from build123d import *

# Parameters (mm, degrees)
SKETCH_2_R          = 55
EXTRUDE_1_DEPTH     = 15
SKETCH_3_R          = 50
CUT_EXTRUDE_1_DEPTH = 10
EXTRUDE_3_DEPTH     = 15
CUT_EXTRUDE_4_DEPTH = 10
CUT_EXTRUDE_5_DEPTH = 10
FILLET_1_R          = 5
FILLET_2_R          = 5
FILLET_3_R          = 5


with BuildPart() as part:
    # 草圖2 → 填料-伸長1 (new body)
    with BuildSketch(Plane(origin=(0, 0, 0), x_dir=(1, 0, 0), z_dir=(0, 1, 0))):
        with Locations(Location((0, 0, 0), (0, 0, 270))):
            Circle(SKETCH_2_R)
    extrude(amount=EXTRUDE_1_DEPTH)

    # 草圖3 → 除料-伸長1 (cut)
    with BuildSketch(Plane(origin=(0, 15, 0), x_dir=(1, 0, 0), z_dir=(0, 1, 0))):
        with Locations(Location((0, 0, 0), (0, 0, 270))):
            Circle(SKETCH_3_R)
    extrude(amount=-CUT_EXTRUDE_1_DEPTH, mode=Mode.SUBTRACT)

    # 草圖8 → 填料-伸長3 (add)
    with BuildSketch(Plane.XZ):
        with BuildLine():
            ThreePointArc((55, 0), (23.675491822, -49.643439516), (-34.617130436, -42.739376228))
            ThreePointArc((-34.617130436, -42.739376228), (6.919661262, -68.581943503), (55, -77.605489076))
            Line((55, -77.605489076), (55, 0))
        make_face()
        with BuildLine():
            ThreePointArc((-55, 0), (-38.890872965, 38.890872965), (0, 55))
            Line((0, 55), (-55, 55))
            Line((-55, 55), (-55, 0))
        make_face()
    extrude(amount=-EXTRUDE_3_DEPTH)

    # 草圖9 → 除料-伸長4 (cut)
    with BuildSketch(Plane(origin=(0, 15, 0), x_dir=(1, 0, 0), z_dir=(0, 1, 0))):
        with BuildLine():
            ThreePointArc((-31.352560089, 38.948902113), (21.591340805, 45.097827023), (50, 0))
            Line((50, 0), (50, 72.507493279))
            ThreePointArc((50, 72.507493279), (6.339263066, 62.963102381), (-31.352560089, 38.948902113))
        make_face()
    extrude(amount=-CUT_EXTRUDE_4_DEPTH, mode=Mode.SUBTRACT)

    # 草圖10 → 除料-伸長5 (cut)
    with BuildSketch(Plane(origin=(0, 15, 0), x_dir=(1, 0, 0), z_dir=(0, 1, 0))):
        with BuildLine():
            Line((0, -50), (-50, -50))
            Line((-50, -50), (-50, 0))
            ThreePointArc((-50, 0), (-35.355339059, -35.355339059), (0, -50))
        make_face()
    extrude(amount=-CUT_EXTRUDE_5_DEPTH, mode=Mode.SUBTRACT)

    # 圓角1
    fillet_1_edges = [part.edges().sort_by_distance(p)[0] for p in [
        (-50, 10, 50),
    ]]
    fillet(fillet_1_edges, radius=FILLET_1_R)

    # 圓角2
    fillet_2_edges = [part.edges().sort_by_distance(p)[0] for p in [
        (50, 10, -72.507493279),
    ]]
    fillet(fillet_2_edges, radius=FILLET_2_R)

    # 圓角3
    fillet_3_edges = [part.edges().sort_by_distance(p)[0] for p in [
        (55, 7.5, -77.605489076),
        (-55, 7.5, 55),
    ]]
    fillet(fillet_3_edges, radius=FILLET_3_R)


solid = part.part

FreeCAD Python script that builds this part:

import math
import FreeCAD as App
import Part
import Sketcher
from FreeCAD import Vector
Q = App.Units.Quantity


def edges_at(feature, points):
    """Names of the edges that pass closest to the given points."""
    edges = feature.Shape.Edges
    near = lambda p: min(range(len(edges)), key=lambda i: edges[i].distToShape(Part.Vertex(*p))[0])
    return sorted({f"Edge{near(p) + 1}" for p in points})

doc = App.newDocument("Part")
body = doc.addObject("PartDesign::Body", "Body")

# Sketch on XZ plane
sketch1 = doc.addObject("Sketcher::SketchObject", "Sketch")
body.addObject(sketch1)
sketch1.AttachmentSupport = (doc.XZ_Plane, [""])
sketch1.MapMode = "FlatFace"
sketch1.addGeometry(Part.Circle(Vector(0, 0, 0), Vector(0, 0, 1), 55), False)
sketch1.addConstraint(Sketcher.Constraint("Coincident", 0, 3, -1, 1))
sketch1.addConstraint(Sketcher.Constraint("Diameter", 0, Q("110 mm")))
pad1 = doc.addObject("PartDesign::Pad", "Pad")
body.addObject(pad1)
pad1.Profile = sketch1
pad1.Length = 15
pad1.Reversed = True

# Sketch on XZ plane
sketch2 = doc.addObject("Sketcher::SketchObject", "Sketch001")
body.addObject(sketch2)
sketch2.AttachmentSupport = (doc.XZ_Plane, [""])
sketch2.MapMode = "FlatFace"
sketch2.AttachmentOffset = App.Placement(Vector(0, 0, -15), App.Rotation())
sketch2.addGeometry(Part.Circle(Vector(0, 0, 0), Vector(0, 0, 1), 50), False)
sketch2.addConstraint(Sketcher.Constraint("Coincident", 0, 3, -1, 1))
sketch2.addConstraint(Sketcher.Constraint("Diameter", 0, Q("100 mm")))
pocket1 = doc.addObject("PartDesign::Pocket", "Pocket")
body.addObject(pocket1)
pocket1.Profile = sketch2
pocket1.Length = 10
pocket1.Reversed = True

# Sketch on XZ plane
sketch3 = doc.addObject("Sketcher::SketchObject", "Sketch002")
body.addObject(sketch3)
sketch3.AttachmentSupport = (doc.XZ_Plane, [""])
sketch3.MapMode = "FlatFace"
sketch3.addGeometry(Part.ArcOfCircle(Part.Circle(Vector(0, 0, 0), Vector(0, 0, 1), 55), math.radians(-129.006044), math.radians(0)), False)
sketch3.addGeometry(Part.ArcOfCircle(Part.Circle(Vector(55, 55, 0), Vector(0, 0, 1), 132.605489), math.radians(-132.517678), math.radians(-90)), False)
sketch3.addGeometry(Part.LineSegment(Vector(55, -77.605489, 0), Vector(55, 0, 0)), False)
sketch3.addGeometry(Part.ArcOfCircle(Part.Circle(Vector(0, 0, 0), Vector(0, 0, 1), 55), math.radians(90), math.radians(180)), False)
sketch3.addGeometry(Part.LineSegment(Vector(0, 55, 0), Vector(-55, 55, 0)), False)
sketch3.addGeometry(Part.LineSegment(Vector(-55, 55, 0), Vector(-55, 0, 0)), False)
sketch3.addConstraint(Sketcher.Constraint("Coincident", 0, 1, 1, 1))
sketch3.addConstraint(Sketcher.Constraint("Coincident", 1, 2, 2, 1))
sketch3.addConstraint(Sketcher.Constraint("Tangent", 2, 2, 0, 2))
sketch3.addConstraint(Sketcher.Constraint("Tangent", 3, 1, 4, 1))
sketch3.addConstraint(Sketcher.Constraint("Coincident", 4, 2, 5, 1))
sketch3.addConstraint(Sketcher.Constraint("Tangent", 5, 2, 3, 2))
sketch3.addConstraint(Sketcher.Constraint("Vertical", 2))
sketch3.addConstraint(Sketcher.Constraint("Horizontal", 4))
sketch3.addConstraint(Sketcher.Constraint("Vertical", 5))
sketch3.addConstraint(Sketcher.Constraint("Coincident", 0, 3, -1, 1))
sketch3.addConstraint(Sketcher.Constraint("Coincident", 3, 3, -1, 1))
sketch3.addConstraint(Sketcher.Constraint("Equal", 0, 3))
sketch3.addConstraint(Sketcher.Constraint("Horizontal", 1, 3, 3, 1))
sketch3.addConstraint(Sketcher.Constraint("Radius", 0, Q("55 mm")))
sketch3.addConstraint(Sketcher.Constraint("DistanceX", -1, 1, 1, 3, Q("55 mm")))
sketch3.addConstraint(Sketcher.Constraint("Radius", 1, Q("132.605489 mm")))
pad2 = doc.addObject("PartDesign::Pad", "Pad001")
body.addObject(pad2)
pad2.Profile = sketch3
pad2.Length = 15
pad2.Reversed = True

# Sketch on XZ plane
sketch4 = doc.addObject("Sketcher::SketchObject", "Sketch003")
body.addObject(sketch4)
sketch4.AttachmentSupport = (doc.XZ_Plane, [""])
sketch4.MapMode = "FlatFace"
sketch4.AttachmentOffset = App.Placement(Vector(0, 0, -15), App.Rotation())
sketch4.addGeometry(Part.ArcOfCircle(Part.Circle(Vector(0, 0, 0), Vector(0, 0, 1), 50), math.radians(-128.832899), math.radians(0)), False)
sketch4.addGeometry(Part.LineSegment(Vector(50, 0, 0), Vector(50, -72.507493, 0)), False)
sketch4.addGeometry(Part.ArcOfCircle(Part.Circle(Vector(55, 55, 0), Vector(0, 0, 1), 127.605489), math.radians(-132.587479), math.radians(-92.245611)), False)
sketch4.addConstraint(Sketcher.Constraint("Tangent", 0, 2, 1, 1))
sketch4.addConstraint(Sketcher.Constraint("Coincident", 1, 2, 2, 2))
sketch4.addConstraint(Sketcher.Constraint("Coincident", 2, 1, 0, 1))
sketch4.addConstraint(Sketcher.Constraint("Vertical", 1))
sketch4.addConstraint(Sketcher.Constraint("Coincident", 0, 3, -1, 1))
sketch4.addConstraint(Sketcher.Constraint("Radius", 0, Q("50 mm")))
sketch4.addConstraint(Sketcher.Constraint("DistanceX", -1, 1, 2, 3, Q("55 mm")))
sketch4.addConstraint(Sketcher.Constraint("DistanceY", -1, 1, 2, 3, Q("55 mm")))
sketch4.addConstraint(Sketcher.Constraint("Radius", 2, Q("127.605489 mm")))
pocket2 = doc.addObject("PartDesign::Pocket", "Pocket001")
body.addObject(pocket2)
pocket2.Profile = sketch4
pocket2.Length = 10
pocket2.Reversed = True

# Sketch on XZ plane
sketch5 = doc.addObject("Sketcher::SketchObject", "Sketch004")
body.addObject(sketch5)
sketch5.AttachmentSupport = (doc.XZ_Plane, [""])
sketch5.MapMode = "FlatFace"
sketch5.AttachmentOffset = App.Placement(Vector(0, 0, -15), App.Rotation())
sketch5.addGeometry(Part.LineSegment(Vector(-50, 50, 0), Vector(0, 50, 0)), False)
sketch5.addGeometry(Part.ArcOfCircle(Part.Circle(Vector(0, 0, 0), Vector(0, 0, 1), 50), math.radians(90), math.radians(180)), False)
sketch5.addGeometry(Part.LineSegment(Vector(-50, 0, 0), Vector(-50, 50, 0)), False)
sketch5.addConstraint(Sketcher.Constraint("Tangent", 0, 2, 1, 1))
sketch5.addConstraint(Sketcher.Constraint("Tangent", 1, 2, 2, 1))
sketch5.addConstraint(Sketcher.Constraint("Coincident", 2, 2, 0, 1))
sketch5.addConstraint(Sketcher.Constraint("Horizontal", 0))
sketch5.addConstraint(Sketcher.Constraint("Vertical", 2))
sketch5.addConstraint(Sketcher.Constraint("Coincident", 1, 3, -1, 1))
sketch5.addConstraint(Sketcher.Constraint("Radius", 1, Q("50 mm")))
pocket3 = doc.addObject("PartDesign::Pocket", "Pocket002")
body.addObject(pocket3)
pocket3.Profile = sketch5
pocket3.Length = 10
pocket3.Reversed = True
doc.recompute()

fillet = doc.addObject("PartDesign::Fillet", "Fillet")
body.addObject(fillet)
fillet.Base = (pocket3, edges_at(pocket3, [(-50, 10, 50)]))
fillet.Radius = 5
doc.recompute()

fillet2 = doc.addObject("PartDesign::Fillet", "Fillet001")
body.addObject(fillet2)
fillet2.Base = (fillet, edges_at(fillet, [(50, 10, -72.507)]))
fillet2.Radius = 5
doc.recompute()

fillet3 = doc.addObject("PartDesign::Fillet", "Fillet002")
body.addObject(fillet3)
fillet3.Base = (fillet2, edges_at(fillet2, [(55, 7.5, -77.605), (-55, 7.5, 55)]))
fillet3.Radius = 5

doc.recompute()
